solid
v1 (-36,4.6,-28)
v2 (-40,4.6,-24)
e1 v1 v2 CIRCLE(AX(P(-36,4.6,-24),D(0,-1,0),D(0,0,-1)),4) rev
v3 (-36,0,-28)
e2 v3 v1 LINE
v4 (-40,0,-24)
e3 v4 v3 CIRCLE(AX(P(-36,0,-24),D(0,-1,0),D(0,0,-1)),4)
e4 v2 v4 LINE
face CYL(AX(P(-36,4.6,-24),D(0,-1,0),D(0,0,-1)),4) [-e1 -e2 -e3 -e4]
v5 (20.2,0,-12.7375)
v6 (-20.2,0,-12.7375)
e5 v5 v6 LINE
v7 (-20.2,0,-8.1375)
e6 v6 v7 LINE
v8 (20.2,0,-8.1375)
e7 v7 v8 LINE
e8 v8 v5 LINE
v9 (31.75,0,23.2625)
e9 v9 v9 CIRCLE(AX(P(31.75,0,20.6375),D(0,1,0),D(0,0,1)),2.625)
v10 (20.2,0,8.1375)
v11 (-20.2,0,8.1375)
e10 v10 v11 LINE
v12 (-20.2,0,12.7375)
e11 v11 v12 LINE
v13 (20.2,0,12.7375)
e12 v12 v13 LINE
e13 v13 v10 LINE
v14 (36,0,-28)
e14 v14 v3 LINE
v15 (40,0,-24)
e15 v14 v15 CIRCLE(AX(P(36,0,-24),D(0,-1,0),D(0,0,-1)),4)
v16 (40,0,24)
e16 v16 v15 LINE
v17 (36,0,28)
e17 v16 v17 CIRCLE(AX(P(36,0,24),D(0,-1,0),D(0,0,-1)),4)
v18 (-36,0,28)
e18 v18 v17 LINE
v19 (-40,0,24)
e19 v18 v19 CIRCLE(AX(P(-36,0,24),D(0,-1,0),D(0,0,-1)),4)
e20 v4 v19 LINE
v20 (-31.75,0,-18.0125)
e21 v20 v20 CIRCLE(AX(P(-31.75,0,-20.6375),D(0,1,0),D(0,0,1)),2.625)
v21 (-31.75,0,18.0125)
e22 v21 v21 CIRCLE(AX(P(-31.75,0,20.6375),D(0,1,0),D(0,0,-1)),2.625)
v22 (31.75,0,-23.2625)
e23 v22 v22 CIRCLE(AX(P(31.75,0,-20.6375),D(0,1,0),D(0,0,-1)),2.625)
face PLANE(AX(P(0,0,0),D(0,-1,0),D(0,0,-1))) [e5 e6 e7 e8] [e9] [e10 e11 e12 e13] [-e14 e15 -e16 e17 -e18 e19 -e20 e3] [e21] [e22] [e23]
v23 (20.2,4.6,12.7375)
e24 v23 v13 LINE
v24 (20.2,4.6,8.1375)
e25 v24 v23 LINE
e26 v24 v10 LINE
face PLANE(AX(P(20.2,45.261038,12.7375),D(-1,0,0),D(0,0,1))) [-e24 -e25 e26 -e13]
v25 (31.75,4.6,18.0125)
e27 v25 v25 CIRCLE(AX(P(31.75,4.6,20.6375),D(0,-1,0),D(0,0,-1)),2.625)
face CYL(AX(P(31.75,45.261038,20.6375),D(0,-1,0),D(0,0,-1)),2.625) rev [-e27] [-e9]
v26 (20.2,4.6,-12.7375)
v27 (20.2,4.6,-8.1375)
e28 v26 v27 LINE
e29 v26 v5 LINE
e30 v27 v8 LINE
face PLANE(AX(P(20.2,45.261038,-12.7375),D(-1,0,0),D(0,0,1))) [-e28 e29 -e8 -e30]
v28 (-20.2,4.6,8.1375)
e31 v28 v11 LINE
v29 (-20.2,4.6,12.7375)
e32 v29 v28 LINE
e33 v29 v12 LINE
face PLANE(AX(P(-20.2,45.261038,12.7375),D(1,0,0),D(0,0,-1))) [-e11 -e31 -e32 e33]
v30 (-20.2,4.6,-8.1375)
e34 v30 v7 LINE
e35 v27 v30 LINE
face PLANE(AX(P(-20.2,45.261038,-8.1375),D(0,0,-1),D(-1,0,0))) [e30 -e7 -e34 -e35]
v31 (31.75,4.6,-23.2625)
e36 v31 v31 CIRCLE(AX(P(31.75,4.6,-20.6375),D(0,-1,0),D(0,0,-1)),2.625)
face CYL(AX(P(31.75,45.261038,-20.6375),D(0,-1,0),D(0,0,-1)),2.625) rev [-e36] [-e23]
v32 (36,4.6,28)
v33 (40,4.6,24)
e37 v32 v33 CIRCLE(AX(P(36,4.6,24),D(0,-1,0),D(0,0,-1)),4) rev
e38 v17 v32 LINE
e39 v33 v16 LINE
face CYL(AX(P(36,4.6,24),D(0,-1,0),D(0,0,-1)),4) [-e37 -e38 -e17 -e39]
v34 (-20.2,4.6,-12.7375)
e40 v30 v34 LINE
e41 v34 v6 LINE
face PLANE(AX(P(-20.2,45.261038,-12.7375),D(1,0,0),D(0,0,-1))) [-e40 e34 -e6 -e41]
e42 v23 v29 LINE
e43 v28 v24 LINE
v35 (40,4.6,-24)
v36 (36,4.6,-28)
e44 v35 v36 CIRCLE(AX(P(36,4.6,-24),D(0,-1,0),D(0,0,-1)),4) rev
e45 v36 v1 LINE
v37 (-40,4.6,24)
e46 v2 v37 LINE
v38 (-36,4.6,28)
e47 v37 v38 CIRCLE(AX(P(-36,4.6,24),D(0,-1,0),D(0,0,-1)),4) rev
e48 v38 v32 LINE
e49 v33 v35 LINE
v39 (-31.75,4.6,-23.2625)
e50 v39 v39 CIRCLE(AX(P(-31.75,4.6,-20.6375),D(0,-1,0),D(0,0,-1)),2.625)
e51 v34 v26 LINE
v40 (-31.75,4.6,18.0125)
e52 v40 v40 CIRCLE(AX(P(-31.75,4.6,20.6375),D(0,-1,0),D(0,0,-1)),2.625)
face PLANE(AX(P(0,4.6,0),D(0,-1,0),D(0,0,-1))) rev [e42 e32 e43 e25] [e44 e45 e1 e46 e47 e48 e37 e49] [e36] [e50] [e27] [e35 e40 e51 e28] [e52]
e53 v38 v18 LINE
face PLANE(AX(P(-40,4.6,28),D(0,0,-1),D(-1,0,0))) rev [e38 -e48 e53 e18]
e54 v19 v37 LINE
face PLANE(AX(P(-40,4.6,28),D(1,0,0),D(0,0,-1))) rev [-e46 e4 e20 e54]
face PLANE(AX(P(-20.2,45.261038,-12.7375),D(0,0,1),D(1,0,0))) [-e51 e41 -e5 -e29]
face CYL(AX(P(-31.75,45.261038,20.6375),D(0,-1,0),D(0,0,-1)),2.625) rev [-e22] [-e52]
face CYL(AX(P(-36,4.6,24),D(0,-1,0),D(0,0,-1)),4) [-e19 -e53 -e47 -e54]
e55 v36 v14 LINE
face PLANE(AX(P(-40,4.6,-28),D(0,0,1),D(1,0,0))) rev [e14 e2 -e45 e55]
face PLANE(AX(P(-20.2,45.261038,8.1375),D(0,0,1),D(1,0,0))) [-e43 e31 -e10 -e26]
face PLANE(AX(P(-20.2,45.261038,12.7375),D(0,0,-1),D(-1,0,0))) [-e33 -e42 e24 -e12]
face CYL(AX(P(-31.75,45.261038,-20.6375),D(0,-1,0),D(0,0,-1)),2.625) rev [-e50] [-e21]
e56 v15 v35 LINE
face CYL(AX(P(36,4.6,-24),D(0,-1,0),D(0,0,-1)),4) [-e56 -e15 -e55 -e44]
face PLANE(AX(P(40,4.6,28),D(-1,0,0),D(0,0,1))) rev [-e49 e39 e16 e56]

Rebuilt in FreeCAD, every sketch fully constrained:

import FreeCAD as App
import Part
import Sketcher


def edges_at(feature, points):
    """Names of the edges that pass closest to the given points."""
    edges = feature.Shape.Edges
    near = lambda p: min(range(len(edges)), key=lambda i: edges[i].distToShape(Part.Vertex(*p))[0])
    return sorted({f"Edge{near(p) + 1}" for p in points})


def add_polygon(sketch, points):
    """Adds a closed chain of lines whose ends are joined by coincident constraints."""
    first, n = sketch.GeometryCount, len(points)
    for a, b in zip(points, points[1:] + points[:1]):
        sketch.addGeometry(Part.LineSegment(App.Vector(*a, 0), App.Vector(*b, 0)), False)
    for i in range(n):
        sketch.addConstraint(Sketcher.Constraint("Coincident", first + i, 2, first + (i + 1) % n, 1))

doc = App.newDocument("Part")
params = doc.addObject("Spreadsheet::Sheet", "Params")
for row, (alias, value) in enumerate([
    ("sketch1_width", "80 mm"),
    ("sketch1_height", "56 mm"),
    ("pad1_length", "4.6 mm"),
    ("sketch2_diameter", "5.25 mm"),
    ("sketch2_width", "40.4 mm"),
    ("sketch2_height", "4.6 mm"),
    ("pocket1_length", "4.6 mm"),
    ("fillet_radius", "4 mm"),
], start=1):
    params.set(f"A{row}", alias)
    params.set(f"B{row}", "=" + value)
    params.setAlias(f"B{row}", alias)

body = doc.addObject("PartDesign::Body", "Body")

# Sketch on XZ plane
sketch1 = doc.addObject("Sketcher::SketchObject", "Sketch")
body.addObject(sketch1)
sketch1.AttachmentSupport = (doc.XZ_Plane, [""])
sketch1.MapMode = "FlatFace"
add_polygon(sketch1, [(-40, -28), (-40, 28), (40, 28), (40, -28)])  # lines 0-3
sketch1.addConstraint([
    Sketcher.Constraint("Vertical", 0),
    Sketcher.Constraint("Horizontal", 1),
    Sketcher.Constraint("Vertical", 2),
    Sketcher.Constraint("Horizontal", 3),
    Sketcher.Constraint("Symmetric", 0, 2, 2, 2, -1, 1),
    Sketcher.Constraint("DistanceX", 1, 1, 1, 2, 80.0),
    Sketcher.Constraint("DistanceY", 0, 1, 0, 2, 56.0),
])
sketch1.setExpression("Constraints[9]", "Params.sketch1_width")
sketch1.setExpression("Constraints[10]", "Params.sketch1_height")
pad1 = doc.addObject("PartDesign::Pad", "Pad")
body.addObject(pad1)
pad1.Profile = sketch1
pad1.setExpression("Length", "Params.pad1_length")
pad1.Reversed = True

# Sketch on XZ plane
sketch2 = doc.addObject("Sketcher::SketchObject", "Sketch001")
body.addObject(sketch2)
sketch2.AttachmentSupport = (doc.XZ_Plane, [""])
sketch2.MapMode = "FlatFace"
sketch2.addGeometry(Part.Circle(App.Vector(-31.8, -20.6, 0), App.Vector(0, 0, 1), 2.6), False)  # 0
sketch2.addGeometry(Part.Circle(App.Vector(31.8, -20.6, 0), App.Vector(0, 0, 1), 2.6), False)  # 1
sketch2.addGeometry(Part.Circle(App.Vector(31.8, 20.6, 0), App.Vector(0, 0, 1), 2.6), False)  # 2
sketch2.addGeometry(Part.Circle(App.Vector(-31.8, 20.6, 0), App.Vector(0, 0, 1), 2.6), False)  # 3
add_polygon(sketch2, [(-20.2, 8.1), (-20.2, 12.7), (20.2, 12.7), (20.2, 8.1)])  # lines 4-7
add_polygon(sketch2, [(-20.2, -12.7), (-20.2, -8.1), (20.2, -8.1), (20.2, -12.7)])  # lines 8-11
sketch2.addConstraint([
    Sketcher.Constraint("Vertical", 4),
    Sketcher.Constraint("Horizontal", 5),
    Sketcher.Constraint("Vertical", 6),
    Sketcher.Constraint("Horizontal", 7),
    Sketcher.Constraint("Vertical", 8),
    Sketcher.Constraint("Horizontal", 9),
    Sketcher.Constraint("Vertical", 10),
    Sketcher.Constraint("Horizontal", 11),
    Sketcher.Constraint("Equal", 0, 1),
    Sketcher.Constraint("Equal", 1, 2),
    Sketcher.Constraint("Equal", 2, 3),
    Sketcher.Constraint("Symmetric", 0, 3, 2, 3, -1, 1),
    Sketcher.Constraint("Symmetric", 1, 3, 3, 3, -1, 1),
    Sketcher.Constraint("Symmetric", 6, 2, 8, 2, -1, 1),
    Sketcher.Constraint("Symmetric", 4, 2, 10, 2, -1, 1),
    Sketcher.Constraint("Symmetric", 0, 3, 1, 3, -2),
    Sketcher.Constraint("Vertical", 7, 2, 8, 2),
    Sketcher.Constraint("Diameter", 0, 5.25),
    Sketcher.Constraint("DistanceX", 5, 1, 5, 2, 40.4),
    Sketcher.Constraint("DistanceY", 4, 1, 4, 2, 4.6),
    Sketcher.Constraint("DistanceX", 0, 3, 1, 3, 63.5),
    Sketcher.Constraint("DistanceY", 4, 2, 3, 3, 7.9),
    Sketcher.Constraint("DistanceY", 1, 3, 2, 3, 41.275),
])
sketch2.setExpression("Constraints[25]", "Params.sketch2_diameter")
sketch2.setExpression("Constraints[26]", "Params.sketch2_width")
sketch2.setExpression("Constraints[27]", "Params.sketch2_height")
pocket1 = doc.addObject("PartDesign::Pocket", "Pocket")
body.addObject(pocket1)
pocket1.Profile = sketch2
pocket1.setExpression("Length", "Params.pocket1_length")
doc.recompute()

fillet = doc.addObject("PartDesign::Fillet", "Fillet")
body.addObject(fillet)
fillet.Base = (pocket1, edges_at(pocket1, [
    (40, 2.3, 28),
    (-40, 2.3, 28),
    (-40, 2.3, -28),
    (40, 2.3, -28),
]))
fillet.setExpression("Radius", "Params.fillet_radius")

doc.recompute()
